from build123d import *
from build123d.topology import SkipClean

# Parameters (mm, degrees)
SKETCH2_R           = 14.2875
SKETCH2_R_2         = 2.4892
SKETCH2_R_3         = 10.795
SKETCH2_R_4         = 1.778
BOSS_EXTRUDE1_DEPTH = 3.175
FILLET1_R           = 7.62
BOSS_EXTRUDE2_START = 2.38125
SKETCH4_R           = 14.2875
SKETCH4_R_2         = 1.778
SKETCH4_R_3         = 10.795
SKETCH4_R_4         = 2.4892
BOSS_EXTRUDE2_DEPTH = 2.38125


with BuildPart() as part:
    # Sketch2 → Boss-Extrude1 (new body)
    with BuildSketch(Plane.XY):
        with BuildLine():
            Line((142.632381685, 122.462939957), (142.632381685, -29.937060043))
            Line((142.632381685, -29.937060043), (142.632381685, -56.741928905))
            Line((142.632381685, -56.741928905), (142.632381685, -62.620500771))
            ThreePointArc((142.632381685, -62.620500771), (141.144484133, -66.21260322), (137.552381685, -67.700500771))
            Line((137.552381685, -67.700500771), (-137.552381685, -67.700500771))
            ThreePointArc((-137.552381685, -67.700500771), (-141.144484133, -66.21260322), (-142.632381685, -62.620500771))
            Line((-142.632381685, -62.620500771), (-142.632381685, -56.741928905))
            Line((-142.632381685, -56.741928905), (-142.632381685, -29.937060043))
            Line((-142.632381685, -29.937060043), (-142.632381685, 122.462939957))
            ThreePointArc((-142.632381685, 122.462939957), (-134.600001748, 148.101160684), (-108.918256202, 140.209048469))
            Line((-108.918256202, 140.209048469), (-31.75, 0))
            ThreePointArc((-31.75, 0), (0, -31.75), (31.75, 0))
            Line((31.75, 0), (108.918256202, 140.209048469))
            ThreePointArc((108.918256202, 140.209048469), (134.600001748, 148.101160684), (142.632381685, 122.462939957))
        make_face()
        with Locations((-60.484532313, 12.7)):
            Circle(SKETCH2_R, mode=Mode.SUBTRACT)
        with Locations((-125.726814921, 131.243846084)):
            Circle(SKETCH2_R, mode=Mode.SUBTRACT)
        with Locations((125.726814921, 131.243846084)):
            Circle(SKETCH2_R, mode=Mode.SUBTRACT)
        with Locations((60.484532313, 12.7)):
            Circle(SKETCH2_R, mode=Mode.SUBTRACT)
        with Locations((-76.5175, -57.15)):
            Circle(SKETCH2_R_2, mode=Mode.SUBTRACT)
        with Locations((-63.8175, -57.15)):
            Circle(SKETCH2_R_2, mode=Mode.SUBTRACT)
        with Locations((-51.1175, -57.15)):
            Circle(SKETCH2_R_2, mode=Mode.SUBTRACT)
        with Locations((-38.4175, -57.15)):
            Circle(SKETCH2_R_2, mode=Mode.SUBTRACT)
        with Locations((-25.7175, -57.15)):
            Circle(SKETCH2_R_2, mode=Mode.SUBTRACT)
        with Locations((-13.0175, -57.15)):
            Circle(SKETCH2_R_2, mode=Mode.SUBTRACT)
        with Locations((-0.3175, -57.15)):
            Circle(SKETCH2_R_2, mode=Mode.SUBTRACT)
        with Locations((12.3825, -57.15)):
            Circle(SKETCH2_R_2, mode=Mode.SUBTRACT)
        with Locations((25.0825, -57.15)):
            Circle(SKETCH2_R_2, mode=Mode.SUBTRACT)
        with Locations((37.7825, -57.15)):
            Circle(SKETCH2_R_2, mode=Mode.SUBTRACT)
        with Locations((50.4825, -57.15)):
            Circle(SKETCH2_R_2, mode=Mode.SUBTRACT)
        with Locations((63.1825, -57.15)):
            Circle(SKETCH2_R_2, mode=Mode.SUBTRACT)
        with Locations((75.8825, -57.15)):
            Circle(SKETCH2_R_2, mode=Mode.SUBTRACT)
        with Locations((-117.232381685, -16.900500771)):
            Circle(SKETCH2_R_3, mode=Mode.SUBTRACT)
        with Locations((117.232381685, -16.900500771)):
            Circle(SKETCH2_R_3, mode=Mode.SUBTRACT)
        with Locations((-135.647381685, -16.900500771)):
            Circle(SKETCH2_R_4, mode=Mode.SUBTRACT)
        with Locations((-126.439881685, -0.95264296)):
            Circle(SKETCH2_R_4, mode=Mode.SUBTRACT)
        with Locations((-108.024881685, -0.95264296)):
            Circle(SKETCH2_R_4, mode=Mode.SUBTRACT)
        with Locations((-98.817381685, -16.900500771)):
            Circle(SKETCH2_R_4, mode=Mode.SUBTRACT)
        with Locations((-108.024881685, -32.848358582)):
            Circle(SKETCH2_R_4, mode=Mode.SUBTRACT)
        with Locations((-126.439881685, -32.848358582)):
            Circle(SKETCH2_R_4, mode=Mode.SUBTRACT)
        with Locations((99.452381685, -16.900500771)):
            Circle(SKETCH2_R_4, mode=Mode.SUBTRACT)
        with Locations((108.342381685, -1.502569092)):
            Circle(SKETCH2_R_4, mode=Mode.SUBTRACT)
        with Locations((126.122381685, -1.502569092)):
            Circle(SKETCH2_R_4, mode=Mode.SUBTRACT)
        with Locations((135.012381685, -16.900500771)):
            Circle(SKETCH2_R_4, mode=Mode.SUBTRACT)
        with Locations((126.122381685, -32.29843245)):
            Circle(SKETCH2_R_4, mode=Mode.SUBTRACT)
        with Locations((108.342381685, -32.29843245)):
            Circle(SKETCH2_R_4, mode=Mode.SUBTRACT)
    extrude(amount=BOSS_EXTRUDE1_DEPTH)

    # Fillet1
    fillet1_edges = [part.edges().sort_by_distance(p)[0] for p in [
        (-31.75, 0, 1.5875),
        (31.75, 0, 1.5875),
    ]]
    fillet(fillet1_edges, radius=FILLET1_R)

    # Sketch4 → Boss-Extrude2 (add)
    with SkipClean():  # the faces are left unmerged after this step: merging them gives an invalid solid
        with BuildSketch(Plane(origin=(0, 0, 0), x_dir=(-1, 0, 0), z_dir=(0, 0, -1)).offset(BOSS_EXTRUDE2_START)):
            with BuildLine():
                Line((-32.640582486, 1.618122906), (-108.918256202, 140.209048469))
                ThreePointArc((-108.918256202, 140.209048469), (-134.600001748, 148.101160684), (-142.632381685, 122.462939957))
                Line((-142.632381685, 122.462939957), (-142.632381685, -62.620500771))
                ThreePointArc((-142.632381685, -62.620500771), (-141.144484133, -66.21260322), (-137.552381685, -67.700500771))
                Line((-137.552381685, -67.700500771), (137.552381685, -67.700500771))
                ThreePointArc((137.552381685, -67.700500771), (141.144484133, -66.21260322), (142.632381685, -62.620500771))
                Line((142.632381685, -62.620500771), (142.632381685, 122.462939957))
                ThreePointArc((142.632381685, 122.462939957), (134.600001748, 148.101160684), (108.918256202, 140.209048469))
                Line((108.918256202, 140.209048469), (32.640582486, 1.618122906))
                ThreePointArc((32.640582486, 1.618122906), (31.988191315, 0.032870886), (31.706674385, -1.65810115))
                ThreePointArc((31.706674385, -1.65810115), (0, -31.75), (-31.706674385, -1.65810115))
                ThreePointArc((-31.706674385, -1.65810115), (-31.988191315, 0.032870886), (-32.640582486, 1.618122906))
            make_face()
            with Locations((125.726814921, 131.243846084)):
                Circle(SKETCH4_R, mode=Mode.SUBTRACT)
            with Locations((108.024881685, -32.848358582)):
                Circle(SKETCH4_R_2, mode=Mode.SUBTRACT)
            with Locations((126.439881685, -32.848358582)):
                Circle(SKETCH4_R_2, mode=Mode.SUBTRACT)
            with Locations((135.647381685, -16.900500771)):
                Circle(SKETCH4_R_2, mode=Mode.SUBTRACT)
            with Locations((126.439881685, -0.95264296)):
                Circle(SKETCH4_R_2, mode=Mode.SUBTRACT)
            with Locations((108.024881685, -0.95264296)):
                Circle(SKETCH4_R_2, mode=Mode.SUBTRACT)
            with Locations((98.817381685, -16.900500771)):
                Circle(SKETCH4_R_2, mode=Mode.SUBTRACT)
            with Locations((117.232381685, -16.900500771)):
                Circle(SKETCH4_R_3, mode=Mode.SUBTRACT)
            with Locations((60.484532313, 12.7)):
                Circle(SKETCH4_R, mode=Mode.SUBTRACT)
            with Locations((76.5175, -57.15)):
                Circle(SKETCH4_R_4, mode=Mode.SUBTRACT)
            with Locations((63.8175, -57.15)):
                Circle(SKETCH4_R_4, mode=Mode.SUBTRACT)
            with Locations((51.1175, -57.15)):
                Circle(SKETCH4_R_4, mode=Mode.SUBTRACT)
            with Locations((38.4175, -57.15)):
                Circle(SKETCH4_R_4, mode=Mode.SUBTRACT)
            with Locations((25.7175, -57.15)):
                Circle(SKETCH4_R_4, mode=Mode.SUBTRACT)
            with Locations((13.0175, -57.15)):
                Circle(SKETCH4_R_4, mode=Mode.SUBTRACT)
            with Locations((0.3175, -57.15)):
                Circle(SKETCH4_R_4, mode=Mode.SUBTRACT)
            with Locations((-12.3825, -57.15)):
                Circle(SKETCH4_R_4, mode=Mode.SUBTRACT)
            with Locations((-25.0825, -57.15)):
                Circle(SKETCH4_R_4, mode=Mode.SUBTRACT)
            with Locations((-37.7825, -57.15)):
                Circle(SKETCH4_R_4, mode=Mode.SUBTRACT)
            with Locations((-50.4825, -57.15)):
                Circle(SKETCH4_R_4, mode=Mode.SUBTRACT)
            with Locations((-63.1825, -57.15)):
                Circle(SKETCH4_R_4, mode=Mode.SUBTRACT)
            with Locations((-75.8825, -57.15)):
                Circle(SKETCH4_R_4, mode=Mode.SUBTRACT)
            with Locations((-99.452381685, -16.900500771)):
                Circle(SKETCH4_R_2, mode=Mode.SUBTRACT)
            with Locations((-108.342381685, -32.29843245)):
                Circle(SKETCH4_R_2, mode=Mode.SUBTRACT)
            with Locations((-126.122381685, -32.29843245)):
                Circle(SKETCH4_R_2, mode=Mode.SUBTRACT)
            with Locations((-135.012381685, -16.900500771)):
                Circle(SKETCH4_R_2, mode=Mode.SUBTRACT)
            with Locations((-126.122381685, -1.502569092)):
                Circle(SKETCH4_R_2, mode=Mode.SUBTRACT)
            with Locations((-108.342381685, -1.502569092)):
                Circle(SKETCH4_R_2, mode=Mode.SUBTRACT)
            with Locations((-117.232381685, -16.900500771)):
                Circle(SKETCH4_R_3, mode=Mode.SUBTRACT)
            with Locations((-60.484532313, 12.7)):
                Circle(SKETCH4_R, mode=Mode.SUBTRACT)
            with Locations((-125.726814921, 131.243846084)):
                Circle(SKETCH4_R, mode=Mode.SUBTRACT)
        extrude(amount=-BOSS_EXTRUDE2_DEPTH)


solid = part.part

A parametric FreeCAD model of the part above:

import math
import FreeCAD as App
import Part
import Sketcher

V = App.Vector
Q = App.Units.Quantity


def edges_at(feature, points):
    """Names of the edges that pass closest to the given points."""
    edges = feature.Shape.Edges
    near = lambda p: min(range(len(edges)), key=lambda i: edges[i].distToShape(Part.Vertex(*p))[0])
    return sorted({f"Edge{near(p) + 1}" for p in points})

doc = App.newDocument("Part")
body = doc.addObject("PartDesign::Body", "Body")

# Sketch on XY plane
sketch1 = body.newObject("Sketcher::SketchObject", "Sketch")
sketch1.AttachmentSupport = (doc.getObject("XY_Plane"), [""])
sketch1.MapMode = "FlatFace"
sketch1.addGeometry([
    Part.LineSegment(V(142.6, -62.6, 0), V(142.6, 122.5, 0)),  # 0
    Part.ArcOfCircle(Part.Circle(V(125.7, 131.2, 0), V(0, 0, 1), 19.1), math.radians(-27), math.radians(152)),  # 1
    Part.LineSegment(V(108.9, 140.2, 0), V(31.8, 0, 0)),  # 2
    Part.ArcOfCircle(Part.Circle(V(0, 0, 0), V(0, 0, 1), 31.8), math.radians(180), math.radians(360)),  # 3
    Part.LineSegment(V(-31.8, 0, 0), V(-108.9, 140.2, 0)),  # 4
    Part.ArcOfCircle(Part.Circle(V(-125.7, 131.2, 0), V(0, 0, 1), 19.1), math.radians(28), math.radians(207)),  # 5
    Part.LineSegment(V(-142.6, 122.5, 0), V(-142.6, -62.6, 0)),  # 6
    Part.ArcOfCircle(Part.Circle(V(-137.6, -62.6, 0), V(0, 0, 1), 5.1), math.radians(180), math.radians(270)),  # 7
    Part.LineSegment(V(-137.6, -67.7, 0), V(137.6, -67.7, 0)),  # 8
    Part.ArcOfCircle(Part.Circle(V(137.6, -62.6, 0), V(0, 0, 1), 5.1), math.radians(-90), math.radians(0)),  # 9
    Part.Circle(V(75.9, -57.1, 0), V(0, 0, 1), 2.5),  # 10
    Part.Circle(V(126.1, -32.3, 0), V(0, 0, 1), 1.8),  # 11
    Part.Circle(V(108.3, -32.3, 0), V(0, 0, 1), 1.8),  # 12
    Part.Circle(V(135, -16.9, 0), V(0, 0, 1), 1.8),  # 13
    Part.Circle(V(117.2, -16.9, 0), V(0, 0, 1), 10.8),  # 14
    Part.Circle(V(99.5, -16.9, 0), V(0, 0, 1), 1.8),  # 15
    Part.Circle(V(63.2, -57.1, 0), V(0, 0, 1), 2.5),  # 16
    Part.Circle(V(50.5, -57.1, 0), V(0, 0, 1), 2.5),  # 17
    Part.Circle(V(37.8, -57.1, 0), V(0, 0, 1), 2.5),  # 18
    Part.Circle(V(25.1, -57.1, 0), V(0, 0, 1), 2.5),  # 19
    Part.Circle(V(12.4, -57.1, 0), V(0, 0, 1), 2.5),  # 20
    Part.Circle(V(126.1, -1.5, 0), V(0, 0, 1), 1.8),  # 21
    Part.Circle(V(108.3, -1.5, 0), V(0, 0, 1), 1.8),  # 22
    Part.Circle(V(60.5, 12.7, 0), V(0, 0, 1), 14.3),  # 23
    Part.Circle(V(-0.3, -57.1, 0), V(0, 0, 1), 2.5),  # 24
    Part.Circle(V(-13, -57.1, 0), V(0, 0, 1), 2.5),  # 25
    Part.Circle(V(-25.7, -57.1, 0), V(0, 0, 1), 2.5),  # 26
    Part.Circle(V(-38.4, -57.1, 0), V(0, 0, 1), 2.5),  # 27
    Part.Circle(V(-51.1, -57.1, 0), V(0, 0, 1), 2.5),  # 28
    Part.Circle(V(-63.8, -57.1, 0), V(0, 0, 1), 2.5),  # 29
    Part.Circle(V(-76.5, -57.1, 0), V(0, 0, 1), 2.5),  # 30
    Part.Circle(V(-98.8, -16.9, 0), V(0, 0, 1), 1.8),  # 31
    Part.Circle(V(-108, -32.8, 0), V(0, 0, 1), 1.8),  # 32
    Part.Circle(V(-126.4, -32.8, 0), V(0, 0, 1), 1.8),  # 33
    Part.Circle(V(-117.2, -16.9, 0), V(0, 0, 1), 10.8),  # 34
    Part.Circle(V(-135.6, -16.9, 0), V(0, 0, 1), 1.8),  # 35
    Part.Circle(V(-60.5, 12.7, 0), V(0, 0, 1), 14.3),  # 36
    Part.Circle(V(-108, -1, 0), V(0, 0, 1), 1.8),  # 37
    Part.Circle(V(-126.4, -1, 0), V(0, 0, 1), 1.8),  # 38
    Part.Circle(V(125.7, 131.2, 0), V(0, 0, 1), 14.3),  # 39
    Part.Circle(V(-125.7, 131.2, 0), V(0, 0, 1), 14.3),  # 40
], False)
sketch1.addConstraint([
    Sketcher.Constraint("Coincident", 0, 2, 1, 1),
    Sketcher.Constraint("Coincident", 1, 2, 2, 1),
    Sketcher.Constraint("Coincident", 2, 2, 3, 2),
    Sketcher.Constraint("Coincident", 3, 1, 4, 1),
    Sketcher.Constraint("Coincident", 4, 2, 5, 1),
    Sketcher.Constraint("Coincident", 5, 2, 6, 1),
    Sketcher.Constraint("Tangent", 6, 2, 7, 1),
    Sketcher.Constraint("Tangent", 7, 2, 8, 1),
    Sketcher.Constraint("Tangent", 8, 2, 9, 1),
    Sketcher.Constraint("Tangent", 9, 2, 0, 1),
    Sketcher.Constraint("Vertical", 0),
    Sketcher.Constraint("Vertical", 6),
    Sketcher.Constraint("Horizontal", 8),
    Sketcher.Constraint("Coincident", 3, 3, -1, 1),
    Sketcher.Constraint("Coincident", 39, 3, 1, 3),
    Sketcher.Constraint("Coincident", 40, 3, 5, 3),
    Sketcher.Constraint("Equal", 1, 5),
    Sketcher.Constraint("Equal", 7, 9),
    Sketcher.Constraint("Equal", 11, 12),
    Sketcher.Constraint("Equal", 12, 13),
    Sketcher.Constraint("Equal", 13, 15),
    Sketcher.Constraint("Equal", 10, 16),
    Sketcher.Constraint("Equal", 16, 17),
    Sketcher.Constraint("Equal", 17, 18),
    Sketcher.Constraint("Equal", 18, 19),
    Sketcher.Constraint("Equal", 19, 20),
    Sketcher.Constraint("Equal", 15, 21),
    Sketcher.Constraint("Equal", 21, 22),
    Sketcher.Constraint("Equal", 20, 24),
    Sketcher.Constraint("Equal", 24, 25),
    Sketcher.Constraint("Equal", 25, 26),
    Sketcher.Constraint("Equal", 26, 27),
    Sketcher.Constraint("Equal", 27, 28),
    Sketcher.Constraint("Equal", 28, 29),
    Sketcher.Constraint("Equal", 29, 30),
    Sketcher.Constraint("Equal", 22, 31),
    Sketcher.Constraint("Equal", 31, 32),
    Sketcher.Constraint("Equal", 32, 33),
    Sketcher.Constraint("Equal", 14, 34),
    Sketcher.Constraint("Equal", 33, 35),
    Sketcher.Constraint("Equal", 23, 36),
    Sketcher.Constraint("Equal", 35, 37),
    Sketcher.Constraint("Equal", 37, 38),
    Sketcher.Constraint("Equal", 36, 39),
    Sketcher.Constraint("Equal", 39, 40),
    Sketcher.Constraint("Symmetric", 1, 3, 5, 3, -2),
    Sketcher.Constraint("Symmetric", 14, 3, 34, 3, -2),
    Sketcher.Constraint("Symmetric", 23, 3, 36, 3, -2),
    Sketcher.Constraint("PointOnObject", 2, 2, -1),
    Sketcher.Constraint("PointOnObject", 3, 1, -1),
    Sketcher.Constraint("Horizontal", 11, 3, 12, 3),
    Sketcher.Constraint("Horizontal", 13, 3, 14, 3),
    Sketcher.Constraint("Horizontal", 14, 3, 15, 3),
    Sketcher.Constraint("Horizontal", 10, 3, 16, 3),
    Sketcher.Constraint("Horizontal", 16, 3, 17, 3),
    Sketcher.Constraint("Horizontal", 17, 3, 18, 3),
    Sketcher.Constraint("Horizontal", 18, 3, 19, 3),
    Sketcher.Constraint("Horizontal", 19, 3, 20, 3),
    Sketcher.Constraint("Horizontal", 21, 3, 22, 3),
    Sketcher.Constraint("Horizontal", 20, 3, 24, 3),
    Sketcher.Constraint("Horizontal", 24, 3, 25, 3),
    Sketcher.Constraint("Horizontal", 25, 3, 26, 3),
    Sketcher.Constraint("Horizontal", 26, 3, 27, 3),
    Sketcher.Constraint("Horizontal", 27, 3, 28, 3),
    Sketcher.Constraint("Horizontal", 28, 3, 29, 3),
    Sketcher.Constraint("Horizontal", 29, 3, 30, 3),
    Sketcher.Constraint("Horizontal", 15, 3, 31, 3),
    Sketcher.Constraint("Horizontal", 32, 3, 33, 3),
    Sketcher.Constraint("Horizontal", 34, 3, 35, 3),
    Sketcher.Constraint("Horizontal", 37, 3, 38, 3),
    Sketcher.Constraint("Horizontal", 1, 2, 4, 2),
    Sketcher.Constraint("Horizontal", 0, 2, 5, 2),
    Sketcher.Constraint("Vertical", 11, 3, 21, 3),
    Sketcher.Constraint("Vertical", 12, 3, 22, 3),
    Sketcher.Constraint("Vertical", 32, 3, 37, 3),
    Sketcher.Constraint("Vertical", 33, 3, 38, 3),
    Sketcher.Constraint("Radius", 7, Q("0.2 in")),
    Sketcher.Constraint("Diameter", 11, Q("0.14 in")),
    Sketcher.Constraint("Diameter", 14, Q("0.85 in")),
    Sketcher.Constraint("Radius", 1, Q("0.75 in")),
    Sketcher.Constraint("Radius", 3, Q("1.25 in")),
    Sketcher.Constraint("Diameter", 10, Q("0.196 in")),
    Sketcher.Constraint("Diameter", 23, Q("1.125 in")),
    Sketcher.Constraint("DistanceX", 17, 3, 10, 3, Q("1 in")),
    Sketcher.Constraint("DistanceX", 18, 3, 16, 3, Q("1 in")),
    Sketcher.Constraint("DistanceX", 19, 3, 17, 3, Q("1 in")),
    Sketcher.Constraint("DistanceX", 20, 3, 18, 3, Q("1 in")),
    Sketcher.Constraint("DistanceX", 24, 3, 19, 3, Q("1 in")),
    Sketcher.Constraint("DistanceX", 25, 3, 20, 3, Q("1 in")),
    Sketcher.Constraint("DistanceX", 26, 3, 24, 3, Q("1 in")),
    Sketcher.Constraint("DistanceX", 27, 3, 25, 3, Q("1 in")),
    Sketcher.Constraint("DistanceX", 28, 3, 26, 3, Q("1 in")),
    Sketcher.Constraint("DistanceX", 29, 3, 27, 3, Q("1 in")),
    Sketcher.Constraint("DistanceX", 30, 3, 28, 3, Q("1 in")),
    Sketcher.Constraint("DistanceX", 6, 2, 34, 3, Q("1 in")),
    Sketcher.Constraint("DistanceY", 7, 2, 35, 3, Q("2 in")),
    Sketcher.Constraint("DistanceY", -1, 1, 23, 3, Q("0.5 in")),
    Sketcher.Constraint("DistanceX", 12, 3, 11, 3, Q("0.7 in")),
    Sketcher.Constraint("DistanceX", 13, 3, 9, 3, Q("0.1 in")),
    Sketcher.Constraint("DistanceX", 15, 3, 14, 3, Q("0.7 in")),
    Sketcher.Constraint("DistanceX", 16, 3, 10, 3, Q("0.5 in")),
    Sketcher.Constraint("DistanceY", 10, 3, -1, 1, Q("2.25 in")),
    Sketcher.Constraint("DistanceX", 11, 3, 9, 3, Q("0.45 in")),
    Sketcher.Constraint("DistanceX", 35, 3, 31, 3, Q("1.45 in")),
    Sketcher.Constraint("DistanceX", 7, 3, 31, 3, Q("1.525 in")),
    Sketcher.Constraint("DistanceX", 33, 3, 32, 3, Q("0.725 in")),
    Sketcher.Constraint("DistanceX", 7, 3, 33, 3, Q("0.4375 in")),
    Sketcher.Constraint("DistanceX", -1, 1, 10, 3, Q("2.9875 in")),
    Sketcher.Constraint("DistanceY", 0, 1, 0, 2, 185.083441),
    Sketcher.Constraint("DistanceY", 7, 3, -1, 1, 62.620501),
    Sketcher.Constraint("DistanceX", 8, 1, 8, 2, 275.104763),
    Sketcher.Constraint("DistanceY", 21, 3, -1, 1, 1.502569),
    Sketcher.Constraint("DistanceY", 32, 3, -1, 1, 32.848359),
    Sketcher.Constraint("DistanceY", -1, 1, 1, 2, 140.209048),
    Sketcher.Constraint("DistanceX", 5, 3, 1, 3, 251.45363),
    Sketcher.Constraint("DistanceY", 9, 3, 11, 3, 30.322068),
    Sketcher.Constraint("DistanceX", 23, 3, 15, 3, 38.967849),
    Sketcher.Constraint("DistanceY", 38, 3, 40, 3, 132.196489),
])
pad1 = body.newObject("PartDesign::Pad", "Pad")
pad1.Profile = sketch1
pad1.Length = Q("0.125 in")
doc.recompute()

fillet = body.newObject("PartDesign::Fillet", "Fillet")
fillet.Base = (pad1, edges_at(pad1, [(-31.75, 0, 1.587), (31.75, 0, 1.587)]))
fillet.Radius = Q("0.3 in")

# Sketch on XY plane
sketch2 = body.newObject("Sketcher::SketchObject", "Sketch001")
sketch2.AttachmentSupport = (doc.getObject("XY_Plane"), [""])
sketch2.MapMode = "FlatFace"
sketch2.AttachmentOffset = App.Placement(V(0, 0, -0.09375 * 25.4), App.Rotation())
sketch2.addGeometry([
    Part.LineSegment(V(32.640582, 1.618123, 0), V(108.918256, 140.209048, 0)),  # 0
    Part.ArcOfCircle(Part.Circle(V(125.726815, 131.243846, 0), V(0, 0, 1), 19.05), math.radians(-27.447778), math.radians(151.925821)),  # 1
    Part.LineSegment(V(142.632382, 122.46294, 0), V(142.632382, -62.620501, 0)),  # 2
    Part.ArcOfCircle(Part.Circle(V(137.552382, -62.620501, 0), V(0, 0, 1), 5.08), math.radians(-90), math.radians(0)),  # 3
    Part.LineSegment(V(137.552382, -67.700501, 0), V(-137.552382, -67.700501, 0)),  # 4
    Part.ArcOfCircle(Part.Circle(V(-137.552382, -62.620501, 0), V(0, 0, 1), 5.08), math.radians(180), math.radians(270)),  # 5
    Part.LineSegment(V(-142.632382, -62.620501, 0), V(-142.632382, 122.46294, 0)),  # 6
    Part.ArcOfCircle(Part.Circle(V(-125.726815, 131.243846, 0), V(0, 0, 1), 19.05), math.radians(28.074179), math.radians(207.447778)),  # 7
    Part.LineSegment(V(-108.918256, 140.209048, 0), V(-32.640582, 1.618123, 0)),  # 8
    Part.ArcOfCircle(Part.Circle(V(-39.316276, -2.056045, 0), V(0, 0, 1), 7.62), math.radians(2.993557), math.radians(28.827507)),  # 9
    Part.ArcOfCircle(Part.Circle(V(0, 0, 0), V(0, 0, 1), 31.75), math.radians(-177.006443), math.radians(-2.993557)),  # 10
    Part.ArcOfCircle(Part.Circle(V(39.316276, -2.056045, 0), V(0, 0, 1), 7.62), math.radians(151.172493), math.radians(177.006443)),  # 11
    Part.Circle(V(75.8825, -57.15, 0), V(0, 0, 1), 2.4892),  # 12
    Part.Circle(V(126.122382, -32.298432, 0), V(0, 0, 1), 1.778),  # 13
    Part.Circle(V(108.342382, -32.298432, 0), V(0, 0, 1), 1.778),  # 14
    Part.Circle(V(135.012382, -16.900501, 0), V(0, 0, 1), 1.778),  # 15
    Part.Circle(V(117.232382, -16.900501, 0), V(0, 0, 1), 10.795),  # 16
    Part.Circle(V(99.452382, -16.900501, 0), V(0, 0, 1), 1.778),  # 17
    Part.Circle(V(63.1825, -57.15, 0), V(0, 0, 1), 2.4892),  # 18
    Part.Circle(V(50.4825, -57.15, 0), V(0, 0, 1), 2.4892),  # 19
    Part.Circle(V(37.7825, -57.15, 0), V(0, 0, 1), 2.4892),  # 20
    Part.Circle(V(25.0825, -57.15, 0), V(0, 0, 1), 2.4892),  # 21
    Part.Circle(V(12.3825, -57.15, 0), V(0, 0, 1), 2.4892),  # 22
    Part.Circle(V(126.122382, -1.502569, 0), V(0, 0, 1), 1.778),  # 23
    Part.Circle(V(108.342382, -1.502569, 0), V(0, 0, 1), 1.778),  # 24
    Part.Circle(V(60.484532, 12.7, 0), V(0, 0, 1), 14.2875),  # 25
    Part.Circle(V(-0.3175, -57.15, 0), V(0, 0, 1), 2.4892),  # 26
    Part.Circle(V(-13.0175, -57.15, 0), V(0, 0, 1), 2.4892),  # 27
    Part.Circle(V(-25.7175, -57.15, 0), V(0, 0, 1), 2.4892),  # 28
    Part.Circle(V(-38.4175, -57.15, 0), V(0, 0, 1), 2.4892),  # 29
    Part.Circle(V(-51.1175, -57.15, 0), V(0, 0, 1), 2.4892),  # 30
    Part.Circle(V(-63.8175, -57.15, 0), V(0, 0, 1), 2.4892),  # 31
    Part.Circle(V(-76.5175, -57.15, 0), V(0, 0, 1), 2.4892),  # 32
    Part.Circle(V(-98.817382, -16.900501, 0), V(0, 0, 1), 1.778),  # 33
    Part.Circle(V(-108.024882, -32.848359, 0), V(0, 0, 1), 1.778),  # 34
    Part.Circle(V(-126.439882, -32.848359, 0), V(0, 0, 1), 1.778),  # 35
    Part.Circle(V(-117.232382, -16.900501, 0), V(0, 0, 1), 10.795),  # 36
    Part.Circle(V(-135.647382, -16.900501, 0), V(0, 0, 1), 1.778),  # 37
    Part.Circle(V(-60.484532, 12.7, 0), V(0, 0, 1), 14.2875),  # 38
    Part.Circle(V(-108.024882, -0.952643, 0), V(0, 0, 1), 1.778),  # 39
    Part.Circle(V(-126.439882, -0.952643, 0), V(0, 0, 1), 1.778),  # 40
    Part.Circle(V(125.726815, 131.243846, 0), V(0, 0, 1), 14.2875),  # 41
    Part.Circle(V(-125.726815, 131.243846, 0), V(0, 0, 1), 14.2875),  # 42
], False)
sketch2.addConstraint([
    Sketcher.Constraint("Coincident", 0, 2, 1, 2),
    Sketcher.Constraint("Coincident", 1, 1, 2, 1),
    Sketcher.Constraint("Coincident", 2, 2, 3, 2),
    Sketcher.Constraint("Coincident", 3, 1, 4, 1),
    Sketcher.Constraint("Coincident", 4, 2, 5, 2),
    Sketcher.Constraint("Coincident", 5, 1, 6, 1),
    Sketcher.Constraint("Coincident", 6, 2, 7, 2),
    Sketcher.Constraint("Coincident", 7, 1, 8, 1),
    Sketcher.Constraint("Coincident", 8, 2, 9, 2),
    Sketcher.Constraint("Coincident", 9, 1, 10, 1),
    Sketcher.Constraint("Coincident", 10, 2, 11, 2),
    Sketcher.Constraint("Coincident", 11, 1, 0, 1),
    Sketcher.Constraint("Vertical", 2),
    Sketcher.Constraint("Horizontal", 4),
    Sketcher.Constraint("Vertical", 6),
    Sketcher.Constraint("Coincident", 10, 3, -1, 1),
    Sketcher.Constraint("Coincident", 41, 3, 1, 3),
    Sketcher.Constraint("Coincident", 42, 3, 7, 3),
    Sketcher.Constraint("Radius", 3, Q("0.2 in")),
    Sketcher.Constraint("Radius", 5, Q("0.2 in")),
    Sketcher.Constraint("Radius", 9, Q("0.3 in")),
    Sketcher.Constraint("Radius", 11, Q("0.3 in")),
    Sketcher.Constraint("Diameter", 13, Q("0.14 in")),
    Sketcher.Constraint("Diameter", 14, Q("0.14 in")),
    Sketcher.Constraint("Diameter", 15, Q("0.14 in")),
    Sketcher.Constraint("Diameter", 16, Q("0.85 in")),
    Sketcher.Constraint("Diameter", 17, Q("0.14 in")),
    Sketcher.Constraint("Diameter", 23, Q("0.14 in")),
    Sketcher.Constraint("Diameter", 24, Q("0.14 in")),
    Sketcher.Constraint("Diameter", 33, Q("0.14 in")),
    Sketcher.Constraint("Diameter", 34, Q("0.14 in")),
    Sketcher.Constraint("Diameter", 35, Q("0.14 in")),
    Sketcher.Constraint("Diameter", 36, Q("0.85 in")),
    Sketcher.Constraint("Diameter", 37, Q("0.14 in")),
    Sketcher.Constraint("Diameter", 39, Q("0.14 in")),
    Sketcher.Constraint("Diameter", 40, Q("0.14 in")),
    Sketcher.Constraint("Radius", 1, Q("0.75 in")),
    Sketcher.Constraint("Radius", 7, Q("0.75 in")),
    Sketcher.Constraint("Radius", 10, Q("1.25 in")),
    Sketcher.Constraint("Diameter", 12, Q("0.196 in")),
    Sketcher.Constraint("Diameter", 18, Q("0.196 in")),
    Sketcher.Constraint("Diameter", 19, Q("0.196 in")),
    Sketcher.Constraint("Diameter", 20, Q("0.196 in")),
    Sketcher.Constraint("Diameter", 21, Q("0.196 in")),
    Sketcher.Constraint("Diameter", 22, Q("0.196 in")),
    Sketcher.Constraint("Diameter", 25, Q("1.125 in")),
    Sketcher.Constraint("Diameter", 26, Q("0.196 in")),
    Sketcher.Constraint("Diameter", 27, Q("0.196 in")),
    Sketcher.Constraint("Diameter", 28, Q("0.196 in")),
    Sketcher.Constraint("Diameter", 29, Q("0.196 in")),
    Sketcher.Constraint("Diameter", 30, Q("0.196 in")),
    Sketcher.Constraint("Diameter", 31, Q("0.196 in")),
    Sketcher.Constraint("Diameter", 32, Q("0.196 in")),
    Sketcher.Constraint("Diameter", 38, Q("1.125 in")),
    Sketcher.Constraint("Diameter", 41, Q("1.125 in")),
    Sketcher.Constraint("Diameter", 42, Q("1.125 in")),
    Sketcher.Constraint("DistanceX", 19, 3, 12, 3, Q("1 in")),
    Sketcher.Constraint("DistanceX", 20, 3, 18, 3, Q("1 in")),
    Sketcher.Constraint("DistanceX", 21, 3, 19, 3, Q("1 in")),
    Sketcher.Constraint("DistanceX", 22, 3, 20, 3, Q("1 in")),
    Sketcher.Constraint("DistanceX", 26, 3, 21, 3, Q("1 in")),
    Sketcher.Constraint("DistanceX", 27, 3, 22, 3, Q("1 in")),
    Sketcher.Constraint("DistanceX", 28, 3, 26, 3, Q("1 in")),
    Sketcher.Constraint("DistanceX", 29, 3, 27, 3, Q("1 in")),
    Sketcher.Constraint("DistanceX", 30, 3, 28, 3, Q("1 in")),
    Sketcher.Constraint("DistanceX", 31, 3, 29, 3, Q("1 in")),
    Sketcher.Constraint("DistanceX", 32, 3, 30, 3, Q("1 in")),
    Sketcher.Constraint("DistanceX", 16, 3, 2, 2, Q("1 in")),
    Sketcher.Constraint("DistanceY", 3, 1, 15, 3, Q("2 in")),
    Sketcher.Constraint("DistanceY", 4, 2, 37, 3, Q("2 in")),
    Sketcher.Constraint("DistanceY", 4, 2, 36, 3, Q("2 in")),
    Sketcher.Constraint("DistanceY", -1, 1, 25, 3, Q("0.5 in")),
    Sketcher.Constraint("DistanceY", -1, 1, 38, 3, Q("0.5 in")),
    Sketcher.Constraint("DistanceX", 14, 3, 13, 3, Q("0.7 in")),
    Sketcher.Constraint("DistanceX", 15, 3, 3, 3, Q("0.1 in")),
    Sketcher.Constraint("DistanceY", 3, 3, 16, 3, Q("1.8 in")),
    Sketcher.Constraint("DistanceX", 17, 3, 16, 3, Q("0.7 in")),
    Sketcher.Constraint("DistanceX", 18, 3, 12, 3, Q("0.5 in")),
    Sketcher.Constraint("DistanceX", 14, 3, 23, 3, Q("0.7 in")),
    Sketcher.Constraint("DistanceX", 24, 3, 23, 3, Q("0.7 in")),
    Sketcher.Constraint("DistanceY", 5, 3, 33, 3, Q("1.8 in")),
    Sketcher.Constraint("DistanceX", 5, 3, 36, 3, Q("0.8 in")),
    Sketcher.Constraint("DistanceY", 2, 2, 15, 3, Q("1.8 in")),
    Sketcher.Constraint("DistanceX", 3, 1, 2, 2, Q("0.2 in")),
    Sketcher.Constraint("DistanceX", 4, 2, 36, 3, Q("0.8 in")),
    Sketcher.Constraint("DistanceY", 4, 2, 5, 1, Q("0.2 in")),
    Sketcher.Constraint("DistanceY", 12, 3, -1, 1, Q("2.25 in")),
    Sketcher.Constraint("DistanceY", 18, 3, -1, 1, Q("2.25 in")),
    Sketcher.Constraint("DistanceY", 19, 3, -1, 1, Q("2.25 in")),
    Sketcher.Constraint("DistanceY", 20, 3, -1, 1, Q("2.25 in")),
    Sketcher.Constraint("DistanceY", 21, 3, -1, 1, Q("2.25 in")),
    Sketcher.Constraint("DistanceY", 22, 3, -1, 1, Q("2.25 in")),
    Sketcher.Constraint("DistanceY", 26, 3, -1, 1, Q("2.25 in")),
    Sketcher.Constraint("DistanceY", 27, 3, -1, 1, Q("2.25 in")),
    Sketcher.Constraint("DistanceY", 28, 3, -1, 1, Q("2.25 in")),
    Sketcher.Constraint("DistanceY", 29, 3, -1, 1, Q("2.25 in")),
    Sketcher.Constraint("DistanceY", 30, 3, -1, 1, Q("2.25 in")),
    Sketcher.Constraint("DistanceY", 31, 3, -1, 1, Q("2.25 in")),
    Sketcher.Constraint("DistanceY", 32, 3, -1, 1, Q("2.25 in")),
    Sketcher.Constraint("DistanceX", 13, 3, 3, 3, Q("0.45 in")),
    Sketcher.Constraint("DistanceX", 37, 3, 33, 3, Q("1.45 in")),
    Sketcher.Constraint("DistanceX", 5, 3, 33, 3, Q("1.525 in")),
    Sketcher.Constraint("DistanceX", 35, 3, 34, 3, Q("0.725 in")),
    Sketcher.Constraint("DistanceX", 5, 3, 35, 3, Q("0.4375 in")),
    Sketcher.Constraint("DistanceX", 35, 3, 39, 3, Q("0.725 in")),
    Sketcher.Constraint("DistanceX", 40, 3, 39, 3, Q("0.725 in")),
    Sketcher.Constraint("DistanceX", -1, 1, 12, 3, Q("2.9875 in")),
    Sketcher.Constraint("DistanceY", 2, 2, 2, 1, 185.083441),
    Sketcher.Constraint("DistanceY", 6, 1, 6, 2, 185.083441),
    Sketcher.Constraint("DistanceY", 3, 3, -1, 1, 62.620501),
    Sketcher.Constraint("DistanceY", 17, 3, -1, 1, 16.900501),
    Sketcher.Constraint("DistanceY", 9, 1, -1, 1, 1.658101),
    Sketcher.Constraint("DistanceY", 10, 2, -1, 1, 1.658101),
    Sketcher.Constraint("DistanceX", 9, 3, 9, 1, 7.609602),
    Sketcher.Constraint("DistanceX", 10, 2, 11, 3, 7.609602),
    Sketcher.Constraint("Distance", 0, 158.195222),
    Sketcher.Constraint("Distance", 8, 158.195222),
    Sketcher.Constraint("DistanceX", 4, 2, 4, 1, 275.104763),
    Sketcher.Constraint("DistanceX", -1, 1, 3, 3, 137.552382),
    Sketcher.Constraint("DistanceY", 23, 3, -1, 1, 1.502569),
    Sketcher.Constraint("DistanceY", 24, 3, -1, 1, 1.502569),
    Sketcher.Constraint("DistanceY", 34, 3, -1, 1, 32.848359),
    Sketcher.Constraint("DistanceY", 35, 3, -1, 1, 32.848359),
    Sketcher.Constraint("DistanceY", -1, 1, 0, 2, 140.209048),
    Sketcher.Constraint("DistanceY", -1, 1, 7, 1, 140.209048),
    Sketcher.Constraint("DistanceX", 7, 3, 1, 3, 251.45363),
    Sketcher.Constraint("DistanceX", 7, 3, 9, 3, 86.410539),
    Sketcher.Constraint("DistanceY", 3, 3, 13, 3, 30.322068),
    Sketcher.Constraint("DistanceY", 3, 3, 14, 3, 30.322068),
    Sketcher.Constraint("DistanceX", 25, 3, 17, 3, 38.967849),
    Sketcher.Constraint("DistanceX", 33, 3, 38, 3, 38.332849),
    Sketcher.Constraint("DistanceY", 40, 3, 42, 3, 132.196489),
    Sketcher.Constraint("DistanceY", 39, 3, 42, 3, 132.196489),
])
pad2 = body.newObject("PartDesign::Pad", "Pad001")
pad2.Profile = sketch2
pad2.Length = Q("0.09375 in")

doc.recompute()
